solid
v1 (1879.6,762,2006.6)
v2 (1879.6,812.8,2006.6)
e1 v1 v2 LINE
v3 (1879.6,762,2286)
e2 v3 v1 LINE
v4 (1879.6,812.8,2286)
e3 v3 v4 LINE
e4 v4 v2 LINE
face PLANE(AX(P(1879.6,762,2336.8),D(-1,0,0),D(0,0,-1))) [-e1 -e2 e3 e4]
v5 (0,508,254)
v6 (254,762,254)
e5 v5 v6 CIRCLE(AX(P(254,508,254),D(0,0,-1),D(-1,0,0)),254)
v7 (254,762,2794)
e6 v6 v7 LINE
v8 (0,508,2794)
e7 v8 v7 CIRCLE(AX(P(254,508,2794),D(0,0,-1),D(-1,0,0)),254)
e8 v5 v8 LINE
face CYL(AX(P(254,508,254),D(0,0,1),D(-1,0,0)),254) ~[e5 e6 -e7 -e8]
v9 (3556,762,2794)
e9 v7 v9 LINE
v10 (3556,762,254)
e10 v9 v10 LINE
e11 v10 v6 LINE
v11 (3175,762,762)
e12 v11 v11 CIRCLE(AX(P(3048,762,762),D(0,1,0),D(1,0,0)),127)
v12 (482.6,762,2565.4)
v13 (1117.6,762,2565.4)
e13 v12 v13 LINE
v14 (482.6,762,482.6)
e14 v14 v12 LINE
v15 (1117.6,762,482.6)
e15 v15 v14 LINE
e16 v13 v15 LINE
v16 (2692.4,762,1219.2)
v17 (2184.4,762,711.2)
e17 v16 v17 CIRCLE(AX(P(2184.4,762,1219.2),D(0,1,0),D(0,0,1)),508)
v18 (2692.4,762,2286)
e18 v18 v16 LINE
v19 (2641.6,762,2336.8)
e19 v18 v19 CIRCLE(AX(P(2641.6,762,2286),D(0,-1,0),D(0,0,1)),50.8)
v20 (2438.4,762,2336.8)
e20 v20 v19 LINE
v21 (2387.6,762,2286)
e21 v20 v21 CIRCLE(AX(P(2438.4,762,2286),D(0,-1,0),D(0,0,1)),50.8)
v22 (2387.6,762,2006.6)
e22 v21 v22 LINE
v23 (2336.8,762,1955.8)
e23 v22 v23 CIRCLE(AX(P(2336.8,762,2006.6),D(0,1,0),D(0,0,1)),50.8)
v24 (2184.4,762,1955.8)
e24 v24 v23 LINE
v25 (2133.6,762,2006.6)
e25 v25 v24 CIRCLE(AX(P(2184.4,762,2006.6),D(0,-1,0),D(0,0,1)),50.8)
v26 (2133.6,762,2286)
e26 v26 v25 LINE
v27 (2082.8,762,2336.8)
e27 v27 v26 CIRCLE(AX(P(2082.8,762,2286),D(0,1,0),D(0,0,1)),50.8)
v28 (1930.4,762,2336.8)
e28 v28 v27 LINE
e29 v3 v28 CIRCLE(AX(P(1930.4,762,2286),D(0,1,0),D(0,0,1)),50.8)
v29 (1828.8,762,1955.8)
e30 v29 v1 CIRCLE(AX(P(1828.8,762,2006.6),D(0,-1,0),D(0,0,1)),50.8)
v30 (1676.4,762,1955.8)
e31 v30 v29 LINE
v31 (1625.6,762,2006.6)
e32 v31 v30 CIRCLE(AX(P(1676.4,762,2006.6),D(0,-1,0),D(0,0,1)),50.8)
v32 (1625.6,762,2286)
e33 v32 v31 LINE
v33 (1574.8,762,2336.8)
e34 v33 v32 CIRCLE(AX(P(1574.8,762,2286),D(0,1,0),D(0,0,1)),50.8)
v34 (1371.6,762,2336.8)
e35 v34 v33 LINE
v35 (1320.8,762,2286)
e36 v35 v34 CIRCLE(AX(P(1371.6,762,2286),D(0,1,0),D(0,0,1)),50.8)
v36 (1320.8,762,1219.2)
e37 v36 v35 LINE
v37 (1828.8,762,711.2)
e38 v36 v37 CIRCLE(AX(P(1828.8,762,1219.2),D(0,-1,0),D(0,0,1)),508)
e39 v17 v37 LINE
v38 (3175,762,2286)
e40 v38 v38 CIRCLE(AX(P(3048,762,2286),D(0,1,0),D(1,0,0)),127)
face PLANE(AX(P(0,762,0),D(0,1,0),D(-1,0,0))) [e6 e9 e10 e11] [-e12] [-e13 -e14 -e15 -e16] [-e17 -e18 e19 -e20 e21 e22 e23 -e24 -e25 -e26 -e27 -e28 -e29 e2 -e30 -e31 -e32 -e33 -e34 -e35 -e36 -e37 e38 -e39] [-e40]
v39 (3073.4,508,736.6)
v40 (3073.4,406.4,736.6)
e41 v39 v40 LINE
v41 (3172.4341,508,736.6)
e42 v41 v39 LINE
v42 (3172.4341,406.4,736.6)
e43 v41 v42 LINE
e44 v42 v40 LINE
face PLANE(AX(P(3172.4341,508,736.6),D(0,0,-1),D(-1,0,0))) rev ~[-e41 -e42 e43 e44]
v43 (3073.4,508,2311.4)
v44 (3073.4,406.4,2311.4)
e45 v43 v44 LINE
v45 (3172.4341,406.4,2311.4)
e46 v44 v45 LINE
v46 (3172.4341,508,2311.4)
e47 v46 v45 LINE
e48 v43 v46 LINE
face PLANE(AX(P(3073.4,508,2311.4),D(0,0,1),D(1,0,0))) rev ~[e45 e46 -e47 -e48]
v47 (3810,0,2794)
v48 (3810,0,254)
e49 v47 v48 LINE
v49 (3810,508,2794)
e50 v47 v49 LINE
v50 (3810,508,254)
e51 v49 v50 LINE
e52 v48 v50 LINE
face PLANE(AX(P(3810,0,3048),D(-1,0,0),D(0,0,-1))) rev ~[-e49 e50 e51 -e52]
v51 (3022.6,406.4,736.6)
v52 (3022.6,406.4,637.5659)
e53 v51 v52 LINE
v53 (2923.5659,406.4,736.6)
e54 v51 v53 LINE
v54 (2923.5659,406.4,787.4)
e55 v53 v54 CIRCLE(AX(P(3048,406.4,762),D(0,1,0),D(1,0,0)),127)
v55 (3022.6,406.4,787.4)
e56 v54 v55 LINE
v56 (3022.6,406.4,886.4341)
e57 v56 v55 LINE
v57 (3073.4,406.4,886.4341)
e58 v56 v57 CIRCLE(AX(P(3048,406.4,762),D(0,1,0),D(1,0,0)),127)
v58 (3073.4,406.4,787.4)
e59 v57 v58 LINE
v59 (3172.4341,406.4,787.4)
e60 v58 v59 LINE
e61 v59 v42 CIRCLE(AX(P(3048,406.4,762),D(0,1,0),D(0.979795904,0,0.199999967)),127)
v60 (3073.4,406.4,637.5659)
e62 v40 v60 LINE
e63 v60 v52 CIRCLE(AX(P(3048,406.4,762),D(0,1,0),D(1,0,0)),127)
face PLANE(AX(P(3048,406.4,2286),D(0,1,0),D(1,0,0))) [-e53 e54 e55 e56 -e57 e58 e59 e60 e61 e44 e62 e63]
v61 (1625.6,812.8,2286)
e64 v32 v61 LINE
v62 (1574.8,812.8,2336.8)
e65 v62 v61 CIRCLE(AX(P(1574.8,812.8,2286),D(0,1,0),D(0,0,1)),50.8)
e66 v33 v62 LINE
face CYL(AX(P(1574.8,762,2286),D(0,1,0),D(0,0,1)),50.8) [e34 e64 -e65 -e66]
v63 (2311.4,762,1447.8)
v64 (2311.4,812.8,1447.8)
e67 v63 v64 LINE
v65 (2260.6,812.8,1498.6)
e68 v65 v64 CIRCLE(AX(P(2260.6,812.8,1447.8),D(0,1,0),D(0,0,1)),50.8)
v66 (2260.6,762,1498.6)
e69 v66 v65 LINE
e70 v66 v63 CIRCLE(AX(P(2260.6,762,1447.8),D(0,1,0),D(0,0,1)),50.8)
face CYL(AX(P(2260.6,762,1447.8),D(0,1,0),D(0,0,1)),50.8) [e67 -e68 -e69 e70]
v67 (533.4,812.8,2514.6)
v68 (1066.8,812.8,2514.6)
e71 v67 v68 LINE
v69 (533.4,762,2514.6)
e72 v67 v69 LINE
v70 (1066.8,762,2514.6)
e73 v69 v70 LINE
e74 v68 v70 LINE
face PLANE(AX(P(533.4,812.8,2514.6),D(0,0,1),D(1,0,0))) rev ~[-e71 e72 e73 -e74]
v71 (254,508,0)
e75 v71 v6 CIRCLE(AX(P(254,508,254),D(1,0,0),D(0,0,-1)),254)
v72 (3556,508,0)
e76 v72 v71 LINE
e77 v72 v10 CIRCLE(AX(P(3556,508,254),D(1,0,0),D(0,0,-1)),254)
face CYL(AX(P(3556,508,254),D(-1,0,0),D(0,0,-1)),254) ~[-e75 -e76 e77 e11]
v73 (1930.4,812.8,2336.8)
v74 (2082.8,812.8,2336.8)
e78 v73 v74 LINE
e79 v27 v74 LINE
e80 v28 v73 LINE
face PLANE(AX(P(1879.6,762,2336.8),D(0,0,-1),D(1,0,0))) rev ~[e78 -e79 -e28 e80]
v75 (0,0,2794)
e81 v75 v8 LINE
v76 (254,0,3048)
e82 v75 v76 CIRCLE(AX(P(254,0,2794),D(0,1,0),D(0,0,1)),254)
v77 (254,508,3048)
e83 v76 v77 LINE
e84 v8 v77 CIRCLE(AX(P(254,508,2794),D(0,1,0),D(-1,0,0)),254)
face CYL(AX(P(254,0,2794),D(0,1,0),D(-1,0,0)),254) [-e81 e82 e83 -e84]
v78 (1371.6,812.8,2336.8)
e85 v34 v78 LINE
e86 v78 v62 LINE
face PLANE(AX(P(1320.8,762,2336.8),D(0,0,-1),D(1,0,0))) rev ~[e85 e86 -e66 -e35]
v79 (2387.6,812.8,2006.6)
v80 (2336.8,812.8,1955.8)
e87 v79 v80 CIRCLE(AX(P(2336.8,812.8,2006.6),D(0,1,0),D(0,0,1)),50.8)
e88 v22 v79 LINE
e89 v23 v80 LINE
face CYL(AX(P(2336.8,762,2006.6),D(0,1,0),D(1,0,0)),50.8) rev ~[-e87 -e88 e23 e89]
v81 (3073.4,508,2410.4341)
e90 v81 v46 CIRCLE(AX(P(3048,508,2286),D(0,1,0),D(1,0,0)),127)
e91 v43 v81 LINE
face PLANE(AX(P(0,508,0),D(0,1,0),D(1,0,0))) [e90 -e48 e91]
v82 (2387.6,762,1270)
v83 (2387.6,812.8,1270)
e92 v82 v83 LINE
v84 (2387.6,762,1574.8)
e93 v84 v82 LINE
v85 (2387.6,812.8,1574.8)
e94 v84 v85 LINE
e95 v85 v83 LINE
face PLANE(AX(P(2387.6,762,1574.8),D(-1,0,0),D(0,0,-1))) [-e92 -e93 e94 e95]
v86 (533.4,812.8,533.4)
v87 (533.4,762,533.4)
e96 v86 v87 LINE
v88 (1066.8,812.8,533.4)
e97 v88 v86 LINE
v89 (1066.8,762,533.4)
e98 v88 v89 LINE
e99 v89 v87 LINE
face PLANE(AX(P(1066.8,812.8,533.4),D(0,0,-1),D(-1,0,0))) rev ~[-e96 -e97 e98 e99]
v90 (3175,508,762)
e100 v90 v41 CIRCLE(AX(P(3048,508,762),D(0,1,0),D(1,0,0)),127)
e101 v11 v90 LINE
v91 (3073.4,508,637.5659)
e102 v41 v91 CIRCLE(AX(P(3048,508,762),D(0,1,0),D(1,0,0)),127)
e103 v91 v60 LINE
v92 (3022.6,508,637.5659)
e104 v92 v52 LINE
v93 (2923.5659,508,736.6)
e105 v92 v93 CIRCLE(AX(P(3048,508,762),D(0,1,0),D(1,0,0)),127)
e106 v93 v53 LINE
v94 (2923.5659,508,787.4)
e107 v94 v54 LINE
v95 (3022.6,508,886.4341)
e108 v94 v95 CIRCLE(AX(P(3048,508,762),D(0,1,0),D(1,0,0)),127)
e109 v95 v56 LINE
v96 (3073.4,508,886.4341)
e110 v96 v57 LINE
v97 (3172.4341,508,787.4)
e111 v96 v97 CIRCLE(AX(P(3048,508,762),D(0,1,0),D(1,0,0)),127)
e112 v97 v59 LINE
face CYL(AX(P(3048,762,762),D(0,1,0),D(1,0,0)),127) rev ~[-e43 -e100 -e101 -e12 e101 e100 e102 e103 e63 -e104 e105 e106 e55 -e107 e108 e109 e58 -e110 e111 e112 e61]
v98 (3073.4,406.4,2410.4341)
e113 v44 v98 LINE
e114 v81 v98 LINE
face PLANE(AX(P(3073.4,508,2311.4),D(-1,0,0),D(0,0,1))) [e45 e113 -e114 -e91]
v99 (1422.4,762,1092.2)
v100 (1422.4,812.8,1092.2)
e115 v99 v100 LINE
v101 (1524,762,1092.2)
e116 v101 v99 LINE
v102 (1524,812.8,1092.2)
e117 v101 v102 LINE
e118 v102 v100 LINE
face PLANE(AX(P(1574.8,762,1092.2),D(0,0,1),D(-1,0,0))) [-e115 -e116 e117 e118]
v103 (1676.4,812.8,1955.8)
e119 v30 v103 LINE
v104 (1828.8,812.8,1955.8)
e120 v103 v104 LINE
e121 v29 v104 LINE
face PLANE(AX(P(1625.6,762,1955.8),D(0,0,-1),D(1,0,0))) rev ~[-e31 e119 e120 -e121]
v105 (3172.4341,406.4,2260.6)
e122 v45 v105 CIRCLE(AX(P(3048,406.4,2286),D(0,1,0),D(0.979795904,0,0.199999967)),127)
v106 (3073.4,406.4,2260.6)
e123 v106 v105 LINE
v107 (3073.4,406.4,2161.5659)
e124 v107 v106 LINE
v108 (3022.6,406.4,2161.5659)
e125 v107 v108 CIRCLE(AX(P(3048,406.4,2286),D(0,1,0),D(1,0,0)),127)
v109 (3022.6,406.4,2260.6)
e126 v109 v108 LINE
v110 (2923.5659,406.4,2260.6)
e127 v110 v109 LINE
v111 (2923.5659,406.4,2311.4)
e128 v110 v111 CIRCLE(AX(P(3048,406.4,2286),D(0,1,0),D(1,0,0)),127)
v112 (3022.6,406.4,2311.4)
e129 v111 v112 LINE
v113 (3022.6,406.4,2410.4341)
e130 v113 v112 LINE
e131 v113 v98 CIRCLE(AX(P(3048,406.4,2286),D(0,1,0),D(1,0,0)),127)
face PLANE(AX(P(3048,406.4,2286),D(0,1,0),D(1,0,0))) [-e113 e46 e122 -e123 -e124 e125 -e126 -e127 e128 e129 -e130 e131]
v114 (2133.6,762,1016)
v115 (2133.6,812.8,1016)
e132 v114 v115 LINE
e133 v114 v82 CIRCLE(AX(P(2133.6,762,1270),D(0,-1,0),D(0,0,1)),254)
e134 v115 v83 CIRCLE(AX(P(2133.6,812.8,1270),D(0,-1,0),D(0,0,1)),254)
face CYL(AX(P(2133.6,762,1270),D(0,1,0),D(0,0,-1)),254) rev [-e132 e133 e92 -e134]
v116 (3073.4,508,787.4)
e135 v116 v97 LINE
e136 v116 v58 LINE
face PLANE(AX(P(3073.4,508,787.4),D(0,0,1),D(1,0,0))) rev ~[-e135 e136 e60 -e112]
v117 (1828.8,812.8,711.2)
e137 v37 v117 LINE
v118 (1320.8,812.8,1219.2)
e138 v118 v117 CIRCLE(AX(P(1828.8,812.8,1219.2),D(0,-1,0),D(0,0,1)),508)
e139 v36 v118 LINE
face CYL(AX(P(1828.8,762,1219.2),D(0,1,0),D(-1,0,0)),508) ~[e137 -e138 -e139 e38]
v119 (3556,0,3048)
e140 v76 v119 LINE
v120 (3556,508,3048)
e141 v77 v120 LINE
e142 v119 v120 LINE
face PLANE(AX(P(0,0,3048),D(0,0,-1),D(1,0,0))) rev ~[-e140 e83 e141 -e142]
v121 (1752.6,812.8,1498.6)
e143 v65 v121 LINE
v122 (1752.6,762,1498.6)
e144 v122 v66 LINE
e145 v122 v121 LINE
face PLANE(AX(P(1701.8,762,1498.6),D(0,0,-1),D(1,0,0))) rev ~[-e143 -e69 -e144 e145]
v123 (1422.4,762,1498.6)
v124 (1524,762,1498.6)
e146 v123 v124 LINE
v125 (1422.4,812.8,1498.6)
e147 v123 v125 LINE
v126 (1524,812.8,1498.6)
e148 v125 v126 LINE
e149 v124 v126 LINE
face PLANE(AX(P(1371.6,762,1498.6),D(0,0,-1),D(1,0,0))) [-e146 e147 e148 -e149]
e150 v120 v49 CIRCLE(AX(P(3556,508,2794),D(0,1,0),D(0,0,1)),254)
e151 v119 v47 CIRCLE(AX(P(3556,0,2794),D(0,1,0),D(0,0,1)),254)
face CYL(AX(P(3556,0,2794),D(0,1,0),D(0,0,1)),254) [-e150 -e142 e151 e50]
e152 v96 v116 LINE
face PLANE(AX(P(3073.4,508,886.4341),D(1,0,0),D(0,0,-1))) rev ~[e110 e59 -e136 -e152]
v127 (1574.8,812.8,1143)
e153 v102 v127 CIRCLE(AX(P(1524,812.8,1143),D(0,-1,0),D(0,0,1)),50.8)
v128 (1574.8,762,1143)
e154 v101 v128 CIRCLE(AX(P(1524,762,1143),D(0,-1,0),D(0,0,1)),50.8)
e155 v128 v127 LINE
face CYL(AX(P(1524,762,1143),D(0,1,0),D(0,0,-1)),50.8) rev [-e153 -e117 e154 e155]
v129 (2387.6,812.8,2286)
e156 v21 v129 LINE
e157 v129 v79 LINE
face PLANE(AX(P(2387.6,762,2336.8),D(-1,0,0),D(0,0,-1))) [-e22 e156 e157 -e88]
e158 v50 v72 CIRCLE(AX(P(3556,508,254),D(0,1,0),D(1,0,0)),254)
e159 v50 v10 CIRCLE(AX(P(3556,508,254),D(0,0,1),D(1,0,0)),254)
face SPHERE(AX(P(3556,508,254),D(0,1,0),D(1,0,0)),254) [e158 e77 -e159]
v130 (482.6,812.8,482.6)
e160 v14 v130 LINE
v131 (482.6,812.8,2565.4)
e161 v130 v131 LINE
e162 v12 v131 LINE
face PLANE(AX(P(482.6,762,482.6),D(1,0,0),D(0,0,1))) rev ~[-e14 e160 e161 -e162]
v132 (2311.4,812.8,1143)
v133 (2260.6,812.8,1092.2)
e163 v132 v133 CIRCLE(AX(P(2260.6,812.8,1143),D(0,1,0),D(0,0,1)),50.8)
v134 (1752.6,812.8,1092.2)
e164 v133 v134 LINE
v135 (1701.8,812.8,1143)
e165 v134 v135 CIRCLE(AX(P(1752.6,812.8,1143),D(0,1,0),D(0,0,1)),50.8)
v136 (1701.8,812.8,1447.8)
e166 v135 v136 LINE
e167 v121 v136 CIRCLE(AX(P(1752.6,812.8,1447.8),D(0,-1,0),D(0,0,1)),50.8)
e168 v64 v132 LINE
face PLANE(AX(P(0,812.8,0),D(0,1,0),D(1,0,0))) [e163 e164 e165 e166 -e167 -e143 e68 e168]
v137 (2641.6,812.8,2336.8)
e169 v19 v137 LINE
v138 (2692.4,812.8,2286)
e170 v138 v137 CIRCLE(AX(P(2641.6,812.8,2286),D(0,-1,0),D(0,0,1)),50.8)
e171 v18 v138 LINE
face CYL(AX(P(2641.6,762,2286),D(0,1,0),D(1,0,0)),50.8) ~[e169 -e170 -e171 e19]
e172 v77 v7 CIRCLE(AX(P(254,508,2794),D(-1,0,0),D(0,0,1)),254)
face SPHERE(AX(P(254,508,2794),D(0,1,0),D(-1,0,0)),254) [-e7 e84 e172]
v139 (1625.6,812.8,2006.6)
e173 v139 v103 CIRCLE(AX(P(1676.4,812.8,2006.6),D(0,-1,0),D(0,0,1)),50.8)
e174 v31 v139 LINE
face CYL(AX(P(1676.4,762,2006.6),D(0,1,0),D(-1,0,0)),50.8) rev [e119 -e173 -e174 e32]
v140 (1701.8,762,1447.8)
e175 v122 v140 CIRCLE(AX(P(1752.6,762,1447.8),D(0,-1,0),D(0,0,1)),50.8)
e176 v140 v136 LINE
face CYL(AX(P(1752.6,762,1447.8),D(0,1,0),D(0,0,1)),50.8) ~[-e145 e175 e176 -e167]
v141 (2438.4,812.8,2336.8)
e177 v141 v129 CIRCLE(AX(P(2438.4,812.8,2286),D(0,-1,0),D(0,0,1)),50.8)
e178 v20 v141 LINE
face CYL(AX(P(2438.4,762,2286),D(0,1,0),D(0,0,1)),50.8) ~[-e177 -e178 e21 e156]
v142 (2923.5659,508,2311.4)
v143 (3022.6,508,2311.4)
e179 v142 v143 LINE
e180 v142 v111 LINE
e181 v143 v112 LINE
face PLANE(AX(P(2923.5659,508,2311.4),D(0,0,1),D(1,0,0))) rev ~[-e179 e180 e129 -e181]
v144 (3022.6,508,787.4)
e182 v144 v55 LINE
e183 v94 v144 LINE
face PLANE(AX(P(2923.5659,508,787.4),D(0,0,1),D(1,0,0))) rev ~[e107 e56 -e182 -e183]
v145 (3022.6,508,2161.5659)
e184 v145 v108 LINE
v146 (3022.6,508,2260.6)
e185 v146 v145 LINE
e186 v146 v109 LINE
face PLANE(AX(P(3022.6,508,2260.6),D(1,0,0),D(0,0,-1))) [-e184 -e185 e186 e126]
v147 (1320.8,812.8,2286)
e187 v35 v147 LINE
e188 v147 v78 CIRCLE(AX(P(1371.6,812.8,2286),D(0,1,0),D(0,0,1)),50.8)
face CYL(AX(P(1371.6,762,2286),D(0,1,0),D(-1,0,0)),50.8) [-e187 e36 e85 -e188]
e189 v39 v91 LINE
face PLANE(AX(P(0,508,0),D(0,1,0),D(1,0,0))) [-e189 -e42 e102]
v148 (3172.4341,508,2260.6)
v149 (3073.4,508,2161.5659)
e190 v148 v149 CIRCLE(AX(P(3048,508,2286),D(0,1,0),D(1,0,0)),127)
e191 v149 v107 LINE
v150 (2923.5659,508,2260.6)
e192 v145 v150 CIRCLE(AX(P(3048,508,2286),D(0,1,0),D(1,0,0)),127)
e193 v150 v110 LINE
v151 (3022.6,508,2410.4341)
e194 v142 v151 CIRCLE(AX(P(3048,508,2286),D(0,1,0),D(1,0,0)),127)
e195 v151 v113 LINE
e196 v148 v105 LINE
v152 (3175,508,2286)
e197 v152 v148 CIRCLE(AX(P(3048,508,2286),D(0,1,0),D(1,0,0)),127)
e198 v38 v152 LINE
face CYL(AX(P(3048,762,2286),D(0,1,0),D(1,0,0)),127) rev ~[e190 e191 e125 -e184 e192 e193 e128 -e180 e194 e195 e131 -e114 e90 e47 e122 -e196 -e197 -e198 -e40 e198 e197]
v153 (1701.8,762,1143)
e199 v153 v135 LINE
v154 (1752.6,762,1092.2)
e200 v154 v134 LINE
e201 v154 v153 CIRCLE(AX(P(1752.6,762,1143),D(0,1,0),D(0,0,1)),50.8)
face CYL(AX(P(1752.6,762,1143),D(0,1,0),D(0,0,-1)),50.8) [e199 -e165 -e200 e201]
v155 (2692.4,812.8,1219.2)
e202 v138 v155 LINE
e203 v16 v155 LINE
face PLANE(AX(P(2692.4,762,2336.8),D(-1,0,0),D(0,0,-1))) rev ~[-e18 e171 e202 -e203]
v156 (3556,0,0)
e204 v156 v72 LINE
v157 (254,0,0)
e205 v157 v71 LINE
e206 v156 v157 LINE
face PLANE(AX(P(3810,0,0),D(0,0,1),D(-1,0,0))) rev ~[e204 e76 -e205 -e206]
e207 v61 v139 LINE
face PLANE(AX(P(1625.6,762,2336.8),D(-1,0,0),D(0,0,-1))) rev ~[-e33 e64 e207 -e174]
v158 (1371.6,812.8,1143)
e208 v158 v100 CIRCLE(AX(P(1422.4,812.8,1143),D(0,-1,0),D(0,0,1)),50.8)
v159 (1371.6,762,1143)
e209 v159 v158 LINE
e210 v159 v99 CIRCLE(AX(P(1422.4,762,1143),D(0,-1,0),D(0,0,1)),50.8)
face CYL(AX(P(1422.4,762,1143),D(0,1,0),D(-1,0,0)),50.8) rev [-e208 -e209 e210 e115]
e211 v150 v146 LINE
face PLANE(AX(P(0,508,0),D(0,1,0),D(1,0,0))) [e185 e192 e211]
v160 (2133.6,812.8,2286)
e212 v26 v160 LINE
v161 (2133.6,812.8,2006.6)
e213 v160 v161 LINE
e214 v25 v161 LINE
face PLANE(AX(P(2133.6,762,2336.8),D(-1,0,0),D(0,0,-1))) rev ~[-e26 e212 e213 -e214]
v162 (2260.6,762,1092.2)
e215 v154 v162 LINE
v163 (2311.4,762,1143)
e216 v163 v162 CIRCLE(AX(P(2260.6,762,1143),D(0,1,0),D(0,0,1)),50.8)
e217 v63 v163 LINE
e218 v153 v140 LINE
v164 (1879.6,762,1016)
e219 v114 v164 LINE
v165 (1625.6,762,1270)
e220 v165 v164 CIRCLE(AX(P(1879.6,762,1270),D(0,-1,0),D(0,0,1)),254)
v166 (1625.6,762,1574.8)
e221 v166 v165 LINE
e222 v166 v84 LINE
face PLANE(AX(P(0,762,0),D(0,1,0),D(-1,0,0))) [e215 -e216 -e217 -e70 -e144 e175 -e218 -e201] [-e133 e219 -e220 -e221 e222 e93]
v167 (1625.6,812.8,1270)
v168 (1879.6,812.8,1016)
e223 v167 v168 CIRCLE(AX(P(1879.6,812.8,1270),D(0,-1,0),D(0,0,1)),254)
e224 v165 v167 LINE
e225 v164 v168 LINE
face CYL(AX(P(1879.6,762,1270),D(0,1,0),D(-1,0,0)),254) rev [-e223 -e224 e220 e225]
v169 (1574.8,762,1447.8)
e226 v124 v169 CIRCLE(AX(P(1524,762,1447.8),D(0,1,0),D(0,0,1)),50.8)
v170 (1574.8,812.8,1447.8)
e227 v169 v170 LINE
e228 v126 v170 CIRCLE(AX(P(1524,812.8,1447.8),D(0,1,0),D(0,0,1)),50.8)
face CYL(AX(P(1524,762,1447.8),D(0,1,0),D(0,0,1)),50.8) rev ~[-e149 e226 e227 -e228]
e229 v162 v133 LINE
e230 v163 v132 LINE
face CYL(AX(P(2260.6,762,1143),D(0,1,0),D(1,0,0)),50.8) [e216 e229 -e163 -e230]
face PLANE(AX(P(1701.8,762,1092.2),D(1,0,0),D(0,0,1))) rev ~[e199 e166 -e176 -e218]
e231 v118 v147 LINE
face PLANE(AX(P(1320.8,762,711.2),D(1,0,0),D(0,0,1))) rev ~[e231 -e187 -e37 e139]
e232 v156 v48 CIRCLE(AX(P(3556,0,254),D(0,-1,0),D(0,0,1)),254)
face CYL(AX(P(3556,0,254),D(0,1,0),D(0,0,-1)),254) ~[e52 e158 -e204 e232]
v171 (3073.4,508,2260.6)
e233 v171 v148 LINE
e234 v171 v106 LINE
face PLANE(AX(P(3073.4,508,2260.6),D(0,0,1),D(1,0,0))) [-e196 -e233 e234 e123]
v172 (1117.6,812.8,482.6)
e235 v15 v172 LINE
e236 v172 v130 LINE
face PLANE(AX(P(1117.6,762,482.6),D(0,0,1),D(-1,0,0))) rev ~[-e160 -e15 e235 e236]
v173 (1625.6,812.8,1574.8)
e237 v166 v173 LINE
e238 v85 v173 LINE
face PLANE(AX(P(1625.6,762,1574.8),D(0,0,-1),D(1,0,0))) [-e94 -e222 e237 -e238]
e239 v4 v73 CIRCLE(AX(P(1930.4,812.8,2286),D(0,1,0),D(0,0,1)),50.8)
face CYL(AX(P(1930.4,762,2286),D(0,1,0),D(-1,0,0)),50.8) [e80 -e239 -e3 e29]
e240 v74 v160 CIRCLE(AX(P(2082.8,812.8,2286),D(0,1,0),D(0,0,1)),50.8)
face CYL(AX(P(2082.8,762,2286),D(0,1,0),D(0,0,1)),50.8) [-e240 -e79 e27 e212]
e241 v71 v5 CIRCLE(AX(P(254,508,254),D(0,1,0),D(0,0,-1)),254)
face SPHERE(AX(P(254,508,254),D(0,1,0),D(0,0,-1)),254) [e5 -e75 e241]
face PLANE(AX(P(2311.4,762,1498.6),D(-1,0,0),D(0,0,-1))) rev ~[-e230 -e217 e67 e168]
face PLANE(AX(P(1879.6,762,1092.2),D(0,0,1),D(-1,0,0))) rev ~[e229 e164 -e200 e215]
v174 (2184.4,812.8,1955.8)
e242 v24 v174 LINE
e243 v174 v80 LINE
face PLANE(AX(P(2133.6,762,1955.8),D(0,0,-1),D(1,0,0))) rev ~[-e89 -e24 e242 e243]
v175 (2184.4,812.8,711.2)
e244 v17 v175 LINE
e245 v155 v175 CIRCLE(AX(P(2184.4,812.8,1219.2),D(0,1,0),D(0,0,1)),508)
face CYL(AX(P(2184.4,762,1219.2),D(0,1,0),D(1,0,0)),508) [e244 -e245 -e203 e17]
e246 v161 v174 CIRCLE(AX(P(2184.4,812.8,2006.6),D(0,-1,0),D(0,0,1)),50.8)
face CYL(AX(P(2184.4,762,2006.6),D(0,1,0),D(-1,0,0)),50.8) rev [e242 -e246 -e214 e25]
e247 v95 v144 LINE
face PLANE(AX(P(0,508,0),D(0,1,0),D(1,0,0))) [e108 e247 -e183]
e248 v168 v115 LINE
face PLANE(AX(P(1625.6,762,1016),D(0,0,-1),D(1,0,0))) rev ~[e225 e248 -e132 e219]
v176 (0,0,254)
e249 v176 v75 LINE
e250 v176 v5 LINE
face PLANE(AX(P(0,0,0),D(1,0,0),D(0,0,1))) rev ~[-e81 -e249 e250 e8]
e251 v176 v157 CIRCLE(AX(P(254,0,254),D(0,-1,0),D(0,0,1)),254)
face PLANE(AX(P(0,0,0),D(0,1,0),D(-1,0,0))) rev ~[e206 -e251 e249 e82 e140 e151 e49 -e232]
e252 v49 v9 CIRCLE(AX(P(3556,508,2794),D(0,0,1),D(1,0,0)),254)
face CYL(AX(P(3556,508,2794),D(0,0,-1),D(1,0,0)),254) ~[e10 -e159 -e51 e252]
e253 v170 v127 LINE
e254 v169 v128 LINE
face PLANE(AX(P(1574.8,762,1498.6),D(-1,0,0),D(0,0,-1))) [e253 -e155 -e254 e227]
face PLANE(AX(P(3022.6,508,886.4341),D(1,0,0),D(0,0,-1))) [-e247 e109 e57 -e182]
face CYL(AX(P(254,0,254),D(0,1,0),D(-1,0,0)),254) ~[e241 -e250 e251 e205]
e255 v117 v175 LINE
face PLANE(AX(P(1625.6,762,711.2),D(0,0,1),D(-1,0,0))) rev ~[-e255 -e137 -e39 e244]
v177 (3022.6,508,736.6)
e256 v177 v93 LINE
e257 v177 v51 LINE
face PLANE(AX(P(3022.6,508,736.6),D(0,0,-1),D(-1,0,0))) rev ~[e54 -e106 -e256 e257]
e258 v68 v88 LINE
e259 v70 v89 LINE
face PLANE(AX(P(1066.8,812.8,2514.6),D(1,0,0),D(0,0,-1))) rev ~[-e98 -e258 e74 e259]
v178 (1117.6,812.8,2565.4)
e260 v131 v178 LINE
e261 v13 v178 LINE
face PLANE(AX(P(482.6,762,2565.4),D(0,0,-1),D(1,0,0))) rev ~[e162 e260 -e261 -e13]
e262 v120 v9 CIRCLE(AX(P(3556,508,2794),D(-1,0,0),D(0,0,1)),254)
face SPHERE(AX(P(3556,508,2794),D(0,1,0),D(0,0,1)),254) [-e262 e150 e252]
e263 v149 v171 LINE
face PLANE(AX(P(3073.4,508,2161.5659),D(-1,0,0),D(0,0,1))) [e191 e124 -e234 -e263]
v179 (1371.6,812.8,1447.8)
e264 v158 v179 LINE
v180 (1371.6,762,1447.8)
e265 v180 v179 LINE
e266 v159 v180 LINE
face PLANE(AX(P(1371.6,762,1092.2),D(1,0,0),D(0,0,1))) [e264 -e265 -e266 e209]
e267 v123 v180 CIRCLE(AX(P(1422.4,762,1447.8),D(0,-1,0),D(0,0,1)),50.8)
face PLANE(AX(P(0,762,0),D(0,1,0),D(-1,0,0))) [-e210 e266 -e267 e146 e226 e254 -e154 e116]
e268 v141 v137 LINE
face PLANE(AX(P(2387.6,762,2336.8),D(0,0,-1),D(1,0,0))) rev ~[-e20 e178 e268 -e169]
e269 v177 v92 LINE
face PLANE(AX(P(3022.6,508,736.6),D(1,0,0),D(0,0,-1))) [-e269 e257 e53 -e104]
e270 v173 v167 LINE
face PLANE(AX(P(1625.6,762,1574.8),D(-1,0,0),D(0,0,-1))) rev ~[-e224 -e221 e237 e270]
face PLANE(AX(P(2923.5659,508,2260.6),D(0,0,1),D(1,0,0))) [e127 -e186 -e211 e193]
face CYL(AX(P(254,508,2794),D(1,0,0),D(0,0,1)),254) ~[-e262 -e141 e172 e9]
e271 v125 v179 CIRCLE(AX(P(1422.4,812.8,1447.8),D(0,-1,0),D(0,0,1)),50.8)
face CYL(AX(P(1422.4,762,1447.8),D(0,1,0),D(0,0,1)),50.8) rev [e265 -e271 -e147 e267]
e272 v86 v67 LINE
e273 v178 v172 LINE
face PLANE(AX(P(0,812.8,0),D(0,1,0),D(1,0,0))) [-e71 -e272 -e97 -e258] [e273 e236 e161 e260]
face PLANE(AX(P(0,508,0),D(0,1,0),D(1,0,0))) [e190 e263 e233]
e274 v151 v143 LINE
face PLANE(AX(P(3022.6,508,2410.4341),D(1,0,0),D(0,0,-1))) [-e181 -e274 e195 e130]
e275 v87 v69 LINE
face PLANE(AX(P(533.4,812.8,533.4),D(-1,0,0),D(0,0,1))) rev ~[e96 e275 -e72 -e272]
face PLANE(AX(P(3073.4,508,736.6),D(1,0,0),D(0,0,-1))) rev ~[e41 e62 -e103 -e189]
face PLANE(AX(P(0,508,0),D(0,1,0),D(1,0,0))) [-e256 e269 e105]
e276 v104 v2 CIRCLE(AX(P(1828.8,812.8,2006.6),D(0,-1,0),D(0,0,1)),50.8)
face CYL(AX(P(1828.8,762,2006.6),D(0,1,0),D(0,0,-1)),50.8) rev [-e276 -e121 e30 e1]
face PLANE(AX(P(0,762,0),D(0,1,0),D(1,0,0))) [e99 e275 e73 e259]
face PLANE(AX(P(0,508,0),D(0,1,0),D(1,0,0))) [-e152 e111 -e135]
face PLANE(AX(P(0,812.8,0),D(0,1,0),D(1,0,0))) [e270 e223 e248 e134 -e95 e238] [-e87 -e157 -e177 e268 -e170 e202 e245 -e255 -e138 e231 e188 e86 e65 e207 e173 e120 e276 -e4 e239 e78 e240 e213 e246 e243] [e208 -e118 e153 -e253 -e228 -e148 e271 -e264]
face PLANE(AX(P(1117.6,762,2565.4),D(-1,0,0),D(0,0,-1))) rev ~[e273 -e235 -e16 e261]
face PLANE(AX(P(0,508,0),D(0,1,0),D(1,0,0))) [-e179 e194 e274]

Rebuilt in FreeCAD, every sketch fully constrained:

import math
import FreeCAD as App
import Part
import Sketcher
from FreeCAD import Vector
Q = App.Units.Quantity


def edges_at(feature, points):
    """Names of the edges that pass closest to the given points."""
    edges = feature.Shape.Edges
    near = lambda p: min(range(len(edges)), key=lambda i: edges[i].distToShape(Part.Vertex(*p))[0])
    return sorted({f"Edge{near(p) + 1}" for p in points})

doc = App.newDocument("Part")
body = doc.addObject("PartDesign::Body", "Body")

# Sketch on XZ plane
sketch1 = body.newObject("Sketcher::SketchObject", "Sketch")
sketch1.AttachmentSupport = (doc.getObject("XZ_Plane"), [""])
sketch1.MapMode = "FlatFace"
sketch1.addGeometry(Part.LineSegment(Vector(0, 0, 0), Vector(0, 3048, 0)), False)
sketch1.addGeometry(Part.LineSegment(Vector(0, 3048, 0), Vector(3810, 3048, 0)), False)
sketch1.addGeometry(Part.LineSegment(Vector(3810, 3048, 0), Vector(3810, 0, 0)), False)
sketch1.addGeometry(Part.LineSegment(Vector(3810, 0, 0), Vector(0, 0, 0)), False)
sketch1.addConstraint(Sketcher.Constraint("Coincident", 0, 2, 1, 1))
sketch1.addConstraint(Sketcher.Constraint("Coincident", 1, 2, 2, 1))
sketch1.addConstraint(Sketcher.Constraint("Coincident", 2, 2, 3, 1))
sketch1.addConstraint(Sketcher.Constraint("Coincident", 3, 2, 0, 1))
sketch1.addConstraint(Sketcher.Constraint("Vertical", 0))
sketch1.addConstraint(Sketcher.Constraint("Horizontal", 1))
sketch1.addConstraint(Sketcher.Constraint("Vertical", 2))
sketch1.addConstraint(Sketcher.Constraint("Horizontal", 3))
sketch1.addConstraint(Sketcher.Constraint("Coincident", 3, 2, -1, 1))
sketch1.addConstraint(Sketcher.Constraint("DistanceX", 1, 1, 1, 2, Q("150 in")))
sketch1.addConstraint(Sketcher.Constraint("DistanceY", 0, 1, 0, 2, Q("120 in")))
pad1 = body.newObject("PartDesign::Pad", "Pad")
pad1.Profile = sketch1
pad1.Length = Q("30 in")
pad1.Reversed = True

# Sketch on XZ plane
sketch2 = body.newObject("Sketcher::SketchObject", "Sketch001")
sketch2.AttachmentSupport = (doc.getObject("XZ_Plane"), [""])
sketch2.MapMode = "FlatFace"
sketch2.AttachmentOffset = App.Placement(Vector(0, 0, -30 * 25.4), App.Rotation())
sketch2.addGeometry(Part.LineSegment(Vector(483, 483, 0), Vector(483, 2565, 0)), False)
sketch2.addGeometry(Part.LineSegment(Vector(483, 2565, 0), Vector(1118, 2565, 0)), False)
sketch2.addGeometry(Part.LineSegment(Vector(1118, 2565, 0), Vector(1118, 483, 0)), False)
sketch2.addGeometry(Part.LineSegment(Vector(1118, 483, 0), Vector(483, 483, 0)), False)
sketch2.addConstraint(Sketcher.Constraint("Coincident", 0, 2, 1, 1))
sketch2.addConstraint(Sketcher.Constraint("Coincident", 1, 2, 2, 1))
sketch2.addConstraint(Sketcher.Constraint("Coincident", 2, 2, 3, 1))
sketch2.addConstraint(Sketcher.Constraint("Coincident", 3, 2, 0, 1))
sketch2.addConstraint(Sketcher.Constraint("Vertical", 0))
sketch2.addConstraint(Sketcher.Constraint("Horizontal", 1))
sketch2.addConstraint(Sketcher.Constraint("Vertical", 2))
sketch2.addConstraint(Sketcher.Constraint("Horizontal", 3))
sketch2.addConstraint(Sketcher.Constraint("DistanceX", 1, 1, 1, 2, Q("25 in")))
sketch2.addConstraint(Sketcher.Constraint("DistanceY", 0, 1, 0, 2, Q("82 in")))
sketch2.addConstraint(Sketcher.Constraint("DistanceX", -1, 1, 0, 2, Q("19 in")))
sketch2.addConstraint(Sketcher.Constraint("DistanceY", -1, 1, 2, 2, Q("19 in")))
pad2 = body.newObject("PartDesign::Pad", "Pad001")
pad2.Profile = sketch2
pad2.Length = Q("2 in")
pad2.Reversed = True

# Sketch on XZ plane
sketch3 = body.newObject("Sketcher::SketchObject", "Sketch002")
sketch3.AttachmentSupport = (doc.getObject("XZ_Plane"), [""])
sketch3.MapMode = "FlatFace"
sketch3.AttachmentOffset = App.Placement(Vector(0, 0, -32 * 25.4), App.Rotation())
sketch3.addGeometry(Part.LineSegment(Vector(533, 533, 0), Vector(533, 2515, 0)), False)
sketch3.addGeometry(Part.LineSegment(Vector(533, 2515, 0), Vector(1067, 2515, 0)), False)
sketch3.addGeometry(Part.LineSegment(Vector(1067, 2515, 0), Vector(1067, 533, 0)), False)
sketch3.addGeometry(Part.LineSegment(Vector(1067, 533, 0), Vector(533, 533, 0)), False)
sketch3.addConstraint(Sketcher.Constraint("Coincident", 0, 2, 1, 1))
sketch3.addConstraint(Sketcher.Constraint("Coincident", 1, 2, 2, 1))
sketch3.addConstraint(Sketcher.Constraint("Coincident", 2, 2, 3, 1))
sketch3.addConstraint(Sketcher.Constraint("Coincident", 3, 2, 0, 1))
sketch3.addConstraint(Sketcher.Constraint("Vertical", 0))
sketch3.addConstraint(Sketcher.Constraint("Horizontal", 1))
sketch3.addConstraint(Sketcher.Constraint("Vertical", 2))
sketch3.addConstraint(Sketcher.Constraint("Horizontal", 3))
sketch3.addConstraint(Sketcher.Constraint("DistanceX", 1, 1, 1, 2, Q("21 in")))
sketch3.addConstraint(Sketcher.Constraint("DistanceY", 0, 1, 0, 2, Q("78 in")))
sketch3.addConstraint(Sketcher.Constraint("DistanceX", -1, 1, 0, 2, Q("21 in")))
sketch3.addConstraint(Sketcher.Constraint("DistanceY", -1, 1, 0, 2, Q("99 in")))
pocket1 = body.newObject("PartDesign::Pocket", "Pocket")
pocket1.Profile = sketch3
pocket1.Length = Q("2 in")
pocket1.Reversed = True
doc.recompute()

fillet = body.newObject("PartDesign::Fillet", "Fillet")
fillet.Base = (pocket1, edges_at(pocket1, [
    (0, 381, 3048),
    (3810, 381, 3048),
    (3810, 381, 0),
    (0, 381, 0),
]))
fillet.Radius = Q("10 in")
doc.recompute()

fillet2 = body.newObject("PartDesign::Fillet", "Fillet001")
fillet2.Base = (fillet, edges_at(fillet, [
    (0, 762, 1524),
    (74.395, 762, 2973.605),
    (1905, 762, 3048),
    (3735.605, 762, 2973.605),
    (3810, 762, 1524),
    (3735.605, 762, 74.395),
    (1905, 762, 0),
    (74.395, 762, 74.395),
]))
fillet2.Radius = Q("10 in")

# Sketch on XZ plane
sketch4 = body.newObject("Sketcher::SketchObject", "Sketch003")
sketch4.AttachmentSupport = (doc.getObject("XZ_Plane"), [""])
sketch4.MapMode = "FlatFace"
sketch4.AttachmentOffset = App.Placement(Vector(0, 0, -30 * 25.4), App.Rotation())
sketch4.addGeometry(Part.Circle(Vector(3048, 2286, 0), Vector(0, 0, 1), 127), False)
sketch4.addGeometry(Part.Circle(Vector(3048, 762, 0), Vector(0, 0, 1), 127), False)
sketch4.addConstraint(Sketcher.Constraint("Equal", 0, 1))
sketch4.addConstraint(Sketcher.Constraint("Vertical", 0, 3, 1, 3))
sketch4.addConstraint(Sketcher.Constraint("Diameter", 0, Q("10 in")))
sketch4.addConstraint(Sketcher.Constraint("DistanceX", -1, 1, 0, 3, Q("120 in")))
sketch4.addConstraint(Sketcher.Constraint("DistanceY", -1, 1, 0, 3, Q("90 in")))
sketch4.addConstraint(Sketcher.Constraint("DistanceY", -1, 1, 1, 3, Q("30 in")))
pocket2 = body.newObject("PartDesign::Pocket", "Pocket001")
pocket2.Profile = sketch4
pocket2.Length = Q("10 in")
pocket2.Reversed = True

# Sketch on XZ plane
sketch5 = body.newObject("Sketcher::SketchObject", "Sketch004")
sketch5.AttachmentSupport = (doc.getObject("XZ_Plane"), [""])
sketch5.MapMode = "FlatFace"
sketch5.AttachmentOffset = App.Placement(Vector(0, 0, -20 * 25.4), App.Rotation())
sketch5.addGeometry(Part.ArcOfCircle(Part.Circle(Vector(3048, 2286, 0), Vector(0, 0, 1), 127), math.radians(-12), math.radians(12)), False)
sketch5.addGeometry(Part.LineSegment(Vector(3172, 2261, 0), Vector(3073, 2261, 0)), False)
sketch5.addGeometry(Part.LineSegment(Vector(3073, 2261, 0), Vector(3073, 2162, 0)), False)
sketch5.addGeometry(Part.ArcOfCircle(Part.Circle(Vector(3048, 2286, 0), Vector(0, 0, 1), 127), math.radians(-102), math.radians(-78)), False)
sketch5.addGeometry(Part.LineSegment(Vector(3023, 2162, 0), Vector(3023, 2261, 0)), False)
sketch5.addGeometry(Part.LineSegment(Vector(3023, 2261, 0), Vector(2924, 2261, 0)), False)
sketch5.addGeometry(Part.ArcOfCircle(Part.Circle(Vector(3048, 2286, 0), Vector(0, 0, 1), 127), math.radians(168), math.radians(192)), False)
sketch5.addGeometry(Part.LineSegment(Vector(2924, 2311, 0), Vector(3023, 2311, 0)), False)
sketch5.addGeometry(Part.LineSegment(Vector(3023, 2311, 0), Vector(3023, 2410, 0)), False)
sketch5.addGeometry(Part.ArcOfCircle(Part.Circle(Vector(3048, 2286, 0), Vector(0, 0, 1), 127), math.radians(78), math.radians(102)), False)
sketch5.addGeometry(Part.LineSegment(Vector(3073, 2410, 0), Vector(3073, 2311, 0)), False)
sketch5.addGeometry(Part.LineSegment(Vector(3073, 2311, 0), Vector(3172, 2311, 0)), False)
sketch5.addGeometry(Part.ArcOfCircle(Part.Circle(Vector(3048, 762, 0), Vector(0, 0, 1), 127), math.radians(-12), math.radians(12)), False)
sketch5.addGeometry(Part.LineSegment(Vector(3172, 737, 0), Vector(3073, 737, 0)), False)
sketch5.addGeometry(Part.LineSegment(Vector(3073, 737, 0), Vector(3073, 638, 0)), False)
sketch5.addGeometry(Part.ArcOfCircle(Part.Circle(Vector(3048, 762, 0), Vector(0, 0, 1), 127), math.radians(-102), math.radians(-78)), False)
sketch5.addGeometry(Part.LineSegment(Vector(3023, 638, 0), Vector(3023, 737, 0)), False)
sketch5.addGeometry(Part.LineSegment(Vector(3023, 737, 0), Vector(2924, 737, 0)), False)
sketch5.addGeometry(Part.ArcOfCircle(Part.Circle(Vector(3048, 762, 0), Vector(0, 0, 1), 127), math.radians(168), math.radians(192)), False)
sketch5.addGeometry(Part.LineSegment(Vector(2924, 787, 0), Vector(3023, 787, 0)), False)
sketch5.addGeometry(Part.LineSegment(Vector(3023, 787, 0), Vector(3023, 886, 0)), False)
sketch5.addGeometry(Part.ArcOfCircle(Part.Circle(Vector(3048, 762, 0), Vector(0, 0, 1), 127), math.radians(78), math.radians(102)), False)
sketch5.addGeometry(Part.LineSegment(Vector(3073, 886, 0), Vector(3073, 787, 0)), False)
sketch5.addGeometry(Part.LineSegment(Vector(3073, 787, 0), Vector(3172, 787, 0)), False)
sketch5.addConstraint(Sketcher.Constraint("Coincident", 0, 1, 1, 1))
sketch5.addConstraint(Sketcher.Constraint("Coincident", 1, 2, 2, 1))
sketch5.addConstraint(Sketcher.Constraint("Coincident", 2, 2, 3, 2))
sketch5.addConstraint(Sketcher.Constraint("Coincident", 3, 1, 4, 1))
sketch5.addConstraint(Sketcher.Constraint("Coincident", 4, 2, 5, 1))
sketch5.addConstraint(Sketcher.Constraint("Coincident", 5, 2, 6, 2))
sketch5.addConstraint(Sketcher.Constraint("Coincident", 6, 1, 7, 1))
sketch5.addConstraint(Sketcher.Constraint("Coincident", 7, 2, 8, 1))
sketch5.addConstraint(Sketcher.Constraint("Coincident", 8, 2, 9, 2))
sketch5.addConstraint(Sketcher.Constraint("Coincident", 9, 1, 10, 1))
sketch5.addConstraint(Sketcher.Constraint("Coincident", 10, 2, 11, 1))
sketch5.addConstraint(Sketcher.Constraint("Coincident", 11, 2, 0, 2))
sketch5.addConstraint(Sketcher.Constraint("Coincident", 12, 1, 13, 1))
sketch5.addConstraint(Sketcher.Constraint("Coincident", 13, 2, 14, 1))
sketch5.addConstraint(Sketcher.Constraint("Coincident", 14, 2, 15, 2))
sketch5.addConstraint(Sketcher.Constraint("Coincident", 15, 1, 16, 1))
sketch5.addConstraint(Sketcher.Constraint("Coincident", 16, 2, 17, 1))
sketch5.addConstraint(Sketcher.Constraint("Coincident", 17, 2, 18, 2))
sketch5.addConstraint(Sketcher.Constraint("Coincident", 18, 1, 19, 1))
sketch5.addConstraint(Sketcher.Constraint("Coincident", 19, 2, 20, 1))
sketch5.addConstraint(Sketcher.Constraint("Coincident", 20, 2, 21, 2))
sketch5.addConstraint(Sketcher.Constraint("Coincident", 21, 1, 22, 1))
sketch5.addConstraint(Sketcher.Constraint("Coincident", 22, 2, 23, 1))
sketch5.addConstraint(Sketcher.Constraint("Coincident", 23, 2, 12, 2))
sketch5.addConstraint(Sketcher.Constraint("Horizontal", 1))
sketch5.addConstraint(Sketcher.Constraint("Vertical", 2))
sketch5.addConstraint(Sketcher.Constraint("Vertical", 4))
sketch5.addConstraint(Sketcher.Constraint("Horizontal", 5))
sketch5.addConstraint(Sketcher.Constraint("Horizontal", 7))
sketch5.addConstraint(Sketcher.Constraint("Vertical", 8))
sketch5.addConstraint(Sketcher.Constraint("Vertical", 10))
sketch5.addConstraint(Sketcher.Constraint("Horizontal", 11))
sketch5.addConstraint(Sketcher.Constraint("Horizontal", 13))
sketch5.addConstraint(Sketcher.Constraint("Vertical", 14))
sketch5.addConstraint(Sketcher.Constraint("Vertical", 16))
sketch5.addConstraint(Sketcher.Constraint("Horizontal", 17))
sketch5.addConstraint(Sketcher.Constraint("Horizontal", 19))
sketch5.addConstraint(Sketcher.Constraint("Vertical", 20))
sketch5.addConstraint(Sketcher.Constraint("Vertical", 22))
sketch5.addConstraint(Sketcher.Constraint("Horizontal", 23))
sketch5.addConstraint(Sketcher.Constraint("Coincident", 3, 3, 0, 3))
sketch5.addConstraint(Sketcher.Constraint("Coincident", 6, 3, 0, 3))
sketch5.addConstraint(Sketcher.Constraint("Coincident", 9, 3, 0, 3))
sketch5.addConstraint(Sketcher.Constraint("Coincident", 15, 3, 12, 3))
sketch5.addConstraint(Sketcher.Constraint("Coincident", 18, 3, 12, 3))
sketch5.addConstraint(Sketcher.Constraint("Coincident", 21, 3, 12, 3))
sketch5.addConstraint(Sketcher.Constraint("Equal", 0, 3))
sketch5.addConstraint(Sketcher.Constraint("Equal", 3, 6))
sketch5.addConstraint(Sketcher.Constraint("Equal", 6, 9))
sketch5.addConstraint(Sketcher.Constraint("Equal", 9, 12))
sketch5.addConstraint(Sketcher.Constraint("Equal", 12, 15))
sketch5.addConstraint(Sketcher.Constraint("Equal", 15, 18))
sketch5.addConstraint(Sketcher.Constraint("Equal", 18, 21))
sketch5.addConstraint(Sketcher.Constraint("Horizontal", 2, 2, 3, 1))
sketch5.addConstraint(Sketcher.Constraint("Horizontal", 1, 2, 4, 2))
sketch5.addConstraint(Sketcher.Constraint("Horizontal", 8, 2, 9, 1))
sketch5.addConstraint(Sketcher.Constraint("Horizontal", 7, 2, 10, 2))
sketch5.addConstraint(Sketcher.Constraint("Horizontal", 14, 2, 15, 1))
sketch5.addConstraint(Sketcher.Constraint("Horizontal", 13, 2, 16, 2))
sketch5.addConstraint(Sketcher.Constraint("Horizontal", 20, 2, 21, 1))
sketch5.addConstraint(Sketcher.Constraint("Horizontal", 19, 2, 22, 2))
sketch5.addConstraint(Sketcher.Constraint("Vertical", 9, 3, 12, 3))
sketch5.addConstraint(Sketcher.Constraint("Vertical", 5, 2, 6, 1))
sketch5.addConstraint(Sketcher.Constraint("Vertical", 4, 2, 7, 2))
sketch5.addConstraint(Sketcher.Constraint("Vertical", 11, 2, 12, 1))
sketch5.addConstraint(Sketcher.Constraint("Vertical", 10, 2, 13, 2))
sketch5.addConstraint(Sketcher.Constraint("Vertical", 17, 2, 18, 1))
sketch5.addConstraint(Sketcher.Constraint("Vertical", 16, 2, 19, 2))
sketch5.addConstraint(Sketcher.Constraint("Equal", 23, 2))
sketch5.addConstraint(Sketcher.Constraint("Radius", 0, Q("5 in")))
sketch5.addConstraint(Sketcher.Constraint("DistanceX", 0, 3, 1, 2, Q("1 in")))
sketch5.addConstraint(Sketcher.Constraint("DistanceX", -1, 1, 0, 3, Q("120 in")))
sketch5.addConstraint(Sketcher.Constraint("DistanceY", -1, 1, 0, 3, Q("90 in")))
sketch5.addConstraint(Sketcher.Constraint("DistanceY", -1, 1, 12, 3, Q("30 in")))
pocket3 = body.newObject("PartDesign::Pocket", "Pocket002")
pocket3.Profile = sketch5
pocket3.Length = Q("4 in")
pocket3.Reversed = True

# Sketch on XZ plane
sketch6 = body.newObject("Sketcher::SketchObject", "Sketch005")
sketch6.AttachmentSupport = (doc.getObject("XZ_Plane"), [""])
sketch6.MapMode = "FlatFace"
sketch6.AttachmentOffset = App.Placement(Vector(0, 0, -30 * 25.4), App.Rotation())
sketch6.addGeometry(Part.LineSegment(Vector(1321, 711, 0), Vector(1321, 2337, 0)), False)
sketch6.addGeometry(Part.LineSegment(Vector(1321, 2337, 0), Vector(1626, 2337, 0)), False)
sketch6.addGeometry(Part.LineSegment(Vector(1626, 2337, 0), Vector(1626, 1956, 0)), False)
sketch6.addGeometry(Part.LineSegment(Vector(1626, 1956, 0), Vector(1880, 1956, 0)), False)
sketch6.addGeometry(Part.LineSegment(Vector(1880, 1956, 0), Vector(1880, 2337, 0)), False)
sketch6.addGeometry(Part.LineSegment(Vector(1880, 2337, 0), Vector(2134, 2337, 0)), False)
sketch6.addGeometry(Part.LineSegment(Vector(2134, 2337, 0), Vector(2134, 1956, 0)), False)
sketch6.addGeometry(Part.LineSegment(Vector(2134, 1956, 0), Vector(2388, 1956, 0)), False)
sketch6.addGeometry(Part.LineSegment(Vector(2388, 1956, 0), Vector(2388, 2337, 0)), False)
sketch6.addGeometry(Part.LineSegment(Vector(2388, 2337, 0), Vector(2692, 2337, 0)), False)
sketch6.addGeometry(Part.LineSegment(Vector(2692, 2337, 0), Vector(2692, 711, 0)), False)
sketch6.addGeometry(Part.LineSegment(Vector(2692, 711, 0), Vector(1321, 711, 0)), False)
sketch6.addGeometry(Part.LineSegment(Vector(1626, 1575, 0), Vector(1626, 1016, 0)), False)
sketch6.addGeometry(Part.LineSegment(Vector(1626, 1016, 0), Vector(2388, 1016, 0)), False)
sketch6.addGeometry(Part.LineSegment(Vector(2388, 1016, 0), Vector(2388, 1575, 0)), False)
sketch6.addGeometry(Part.LineSegment(Vector(2388, 1575, 0), Vector(1626, 1575, 0)), False)
sketch6.addGeometry(Part.LineSegment(Vector(1575, 1499, 0), Vector(1372, 1499, 0)), False)
sketch6.addGeometry(Part.LineSegment(Vector(1372, 1499, 0), Vector(1372, 1092, 0)), False)
sketch6.addGeometry(Part.LineSegment(Vector(1372, 1092, 0), Vector(1575, 1092, 0)), False)
sketch6.addGeometry(Part.LineSegment(Vector(1575, 1092, 0), Vector(1575, 1499, 0)), False)
sketch6.addGeometry(Part.LineSegment(Vector(1702, 1499, 0), Vector(2311, 1499, 0)), False)
sketch6.addGeometry(Part.LineSegment(Vector(2311, 1499, 0), Vector(2311, 1092, 0)), False)
sketch6.addGeometry(Part.LineSegment(Vector(2311, 1092, 0), Vector(1702, 1092, 0)), False)
sketch6.addGeometry(Part.LineSegment(Vector(1702, 1092, 0), Vector(1702, 1499, 0)), False)
sketch6.addConstraint(Sketcher.Constraint("Coincident", 0, 2, 1, 1))
sketch6.addConstraint(Sketcher.Constraint("Coincident", 1, 2, 2, 1))
sketch6.addConstraint(Sketcher.Constraint("Coincident", 2, 2, 3, 1))
sketch6.addConstraint(Sketcher.Constraint("Coincident", 3, 2, 4, 1))
sketch6.addConstraint(Sketcher.Constraint("Coincident", 4, 2, 5, 1))
sketch6.addConstraint(Sketcher.Constraint("Coincident", 5, 2, 6, 1))
sketch6.addConstraint(Sketcher.Constraint("Coincident", 6, 2, 7, 1))
sketch6.addConstraint(Sketcher.Constraint("Coincident", 7, 2, 8, 1))
sketch6.addConstraint(Sketcher.Constraint("Coincident", 8, 2, 9, 1))
sketch6.addConstraint(Sketcher.Constraint("Coincident", 9, 2, 10, 1))
sketch6.addConstraint(Sketcher.Constraint("Coincident", 10, 2, 11, 1))
sketch6.addConstraint(Sketcher.Constraint("Coincident", 11, 2, 0, 1))
sketch6.addConstraint(Sketcher.Constraint("Coincident", 12, 2, 13, 1))
sketch6.addConstraint(Sketcher.Constraint("Coincident", 13, 2, 14, 1))
sketch6.addConstraint(Sketcher.Constraint("Coincident", 14, 2, 15, 1))
sketch6.addConstraint(Sketcher.Constraint("Coincident", 15, 2, 12, 1))
sketch6.addConstraint(Sketcher.Constraint("Coincident", 16, 2, 17, 1))
sketch6.addConstraint(Sketcher.Constraint("Coincident", 17, 2, 18, 1))
sketch6.addConstraint(Sketcher.Constraint("Coincident", 18, 2, 19, 1))
sketch6.addConstraint(Sketcher.Constraint("Coincident", 19, 2, 16, 1))
sketch6.addConstraint(Sketcher.Constraint("Coincident", 20, 2, 21, 1))
sketch6.addConstraint(Sketcher.Constraint("Coincident", 21, 2, 22, 1))
sketch6.addConstraint(Sketcher.Constraint("Coincident", 22, 2, 23, 1))
sketch6.addConstraint(Sketcher.Constraint("Coincident", 23, 2, 20, 1))
sketch6.addConstraint(Sketcher.Constraint("Vertical", 0))
sketch6.addConstraint(Sketcher.Constraint("Horizontal", 1))
sketch6.addConstraint(Sketcher.Constraint("Vertical", 2))
sketch6.addConstraint(Sketcher.Constraint("Horizontal", 3))
sketch6.addConstraint(Sketcher.Constraint("Vertical", 4))
sketch6.addConstraint(Sketcher.Constraint("Horizontal", 5))
sketch6.addConstraint(Sketcher.Constraint("Vertical", 6))
sketch6.addConstraint(Sketcher.Constraint("Horizontal", 7))
sketch6.addConstraint(Sketcher.Constraint("Vertical", 8))
sketch6.addConstraint(Sketcher.Constraint("Horizontal", 9))
sketch6.addConstraint(Sketcher.Constraint("Vertical", 10))
sketch6.addConstraint(Sketcher.Constraint("Horizontal", 11))
sketch6.addConstraint(Sketcher.Constraint("Vertical", 12))
sketch6.addConstraint(Sketcher.Constraint("Horizontal", 13))
sketch6.addConstraint(Sketcher.Constraint("Vertical", 14))
sketch6.addConstraint(Sketcher.Constraint("Horizontal", 15))
sketch6.addConstraint(Sketcher.Constraint("Horizontal", 16))
sketch6.addConstraint(Sketcher.Constraint("Vertical", 17))
sketch6.addConstraint(Sketcher.Constraint("Horizontal", 18))
sketch6.addConstraint(Sketcher.Constraint("Vertical", 19))
sketch6.addConstraint(Sketcher.Constraint("Horizontal", 20))
sketch6.addConstraint(Sketcher.Constraint("Vertical", 21))
sketch6.addConstraint(Sketcher.Constraint("Horizontal", 22))
sketch6.addConstraint(Sketcher.Constraint("Vertical", 23))
sketch6.addConstraint(Sketcher.Constraint("Horizontal", 1, 2, 4, 2))
sketch6.addConstraint(Sketcher.Constraint("Horizontal", 3, 2, 6, 2))
sketch6.addConstraint(Sketcher.Constraint("Horizontal", 5, 2, 8, 2))
sketch6.addConstraint(Sketcher.Constraint("Horizontal", 19, 2, 20, 2))
sketch6.addConstraint(Sketcher.Constraint("Horizontal", 18, 2, 21, 2))
sketch6.addConstraint(Sketcher.Constraint("Vertical", 2, 2, 12, 2))
sketch6.addConstraint(Sketcher.Constraint("Vertical", 8, 2, 13, 2))
sketch6.addConstraint(Sketcher.Constraint("Equal", 3, 5))
sketch6.addConstraint(Sketcher.Constraint("Equal", 5, 7))
sketch6.addConstraint(Sketcher.Constraint("Equal", 1, 9))
sketch6.addConstraint(Sketcher.Constraint("DistanceX", 1, 1, 1, 2, Q("12 in")))
sketch6.addConstraint(Sketcher.Constraint("DistanceX", 3, 1, 3, 2, Q("10 in")))
sketch6.addConstraint(Sketcher.Constraint("DistanceX", 16, 2, 16, 1, Q("8 in")))
sketch6.addConstraint(Sketcher.Constraint("DistanceY", 0, 1, 0, 2, Q("64 in")))
sketch6.addConstraint(Sketcher.Constraint("DistanceY", 2, 2, 2, 1, Q("15 in")))
sketch6.addConstraint(Sketcher.Constraint("DistanceX", -1, 1, 1, 2, Q("64 in")))
sketch6.addConstraint(Sketcher.Constraint("DistanceY", -1, 1, 10, 2, Q("28 in")))
sketch6.addConstraint(Sketcher.Constraint("DistanceX", -1, 1, 16, 2, Q("54 in")))
sketch6.addConstraint(Sketcher.Constraint("DistanceY", 11, 2, 12, 2, Q("12 in")))
sketch6.addConstraint(Sketcher.Constraint("DistanceY", 14, 2, 7, 2, Q("15 in")))
sketch6.addConstraint(Sketcher.Constraint("DistanceY", 16, 2, 15, 2, Q("3 in")))
sketch6.addConstraint(Sketcher.Constraint("DistanceY", 12, 2, 17, 2, Q("3 in")))
sketch6.addConstraint(Sketcher.Constraint("DistanceX", 20, 2, 14, 2, Q("3 in")))
sketch6.addConstraint(Sketcher.Constraint("DistanceX", 12, 2, 22, 2, Q("3 in")))
pad3 = body.newObject("PartDesign::Pad", "Pad002")
pad3.Profile = sketch6
pad3.Length = Q("2 in")
pad3.Reversed = True
doc.recompute()

fillet3 = body.newObject("PartDesign::Fillet", "Fillet002")
fillet3.Base = (pad3, edges_at(pad3, [(2692.4, 787.4, 711.2), (1320.8, 787.4, 711.2)]))
fillet3.Radius = Q("20 in")
doc.recompute()

fillet4 = body.newObject("PartDesign::Fillet", "Fillet003")
fillet4.Base = (fillet3, edges_at(fillet3, [(2387.6, 787.4, 1016), (1625.6, 787.4, 1016)]))
fillet4.Radius = Q("10 in")
doc.recompute()

fillet5 = body.newObject("PartDesign::Fillet", "Fillet004")
fillet5.Base = (fillet4, edges_at(fillet4, [
    (1701.8, 787.4, 1092.2),
    (2311.4, 787.4, 1092.2),
    (2311.4, 787.4, 1498.6),
    (1701.8, 787.4, 1498.6),
    (1625.6, 787.4, 1955.8),
    (1879.6, 787.4, 1955.8),
    (1879.6, 787.4, 2336.8),
    (1320.8, 787.4, 2336.8),
    (1625.6, 787.4, 2336.8),
    (2133.6, 787.4, 2336.8),
    (2133.6, 787.4, 1955.8),
    (2387.6, 787.4, 1955.8),
    (2387.6, 787.4, 2336.8),
    (2692.4, 787.4, 2336.8),
    (1574.8, 787.4, 1092.2),
    (1371.6, 787.4, 1092.2),
    (1371.6, 787.4, 1498.6),
    (1574.8, 787.4, 1498.6),
]))
fillet5.Radius = Q("2 in")

doc.recompute()
